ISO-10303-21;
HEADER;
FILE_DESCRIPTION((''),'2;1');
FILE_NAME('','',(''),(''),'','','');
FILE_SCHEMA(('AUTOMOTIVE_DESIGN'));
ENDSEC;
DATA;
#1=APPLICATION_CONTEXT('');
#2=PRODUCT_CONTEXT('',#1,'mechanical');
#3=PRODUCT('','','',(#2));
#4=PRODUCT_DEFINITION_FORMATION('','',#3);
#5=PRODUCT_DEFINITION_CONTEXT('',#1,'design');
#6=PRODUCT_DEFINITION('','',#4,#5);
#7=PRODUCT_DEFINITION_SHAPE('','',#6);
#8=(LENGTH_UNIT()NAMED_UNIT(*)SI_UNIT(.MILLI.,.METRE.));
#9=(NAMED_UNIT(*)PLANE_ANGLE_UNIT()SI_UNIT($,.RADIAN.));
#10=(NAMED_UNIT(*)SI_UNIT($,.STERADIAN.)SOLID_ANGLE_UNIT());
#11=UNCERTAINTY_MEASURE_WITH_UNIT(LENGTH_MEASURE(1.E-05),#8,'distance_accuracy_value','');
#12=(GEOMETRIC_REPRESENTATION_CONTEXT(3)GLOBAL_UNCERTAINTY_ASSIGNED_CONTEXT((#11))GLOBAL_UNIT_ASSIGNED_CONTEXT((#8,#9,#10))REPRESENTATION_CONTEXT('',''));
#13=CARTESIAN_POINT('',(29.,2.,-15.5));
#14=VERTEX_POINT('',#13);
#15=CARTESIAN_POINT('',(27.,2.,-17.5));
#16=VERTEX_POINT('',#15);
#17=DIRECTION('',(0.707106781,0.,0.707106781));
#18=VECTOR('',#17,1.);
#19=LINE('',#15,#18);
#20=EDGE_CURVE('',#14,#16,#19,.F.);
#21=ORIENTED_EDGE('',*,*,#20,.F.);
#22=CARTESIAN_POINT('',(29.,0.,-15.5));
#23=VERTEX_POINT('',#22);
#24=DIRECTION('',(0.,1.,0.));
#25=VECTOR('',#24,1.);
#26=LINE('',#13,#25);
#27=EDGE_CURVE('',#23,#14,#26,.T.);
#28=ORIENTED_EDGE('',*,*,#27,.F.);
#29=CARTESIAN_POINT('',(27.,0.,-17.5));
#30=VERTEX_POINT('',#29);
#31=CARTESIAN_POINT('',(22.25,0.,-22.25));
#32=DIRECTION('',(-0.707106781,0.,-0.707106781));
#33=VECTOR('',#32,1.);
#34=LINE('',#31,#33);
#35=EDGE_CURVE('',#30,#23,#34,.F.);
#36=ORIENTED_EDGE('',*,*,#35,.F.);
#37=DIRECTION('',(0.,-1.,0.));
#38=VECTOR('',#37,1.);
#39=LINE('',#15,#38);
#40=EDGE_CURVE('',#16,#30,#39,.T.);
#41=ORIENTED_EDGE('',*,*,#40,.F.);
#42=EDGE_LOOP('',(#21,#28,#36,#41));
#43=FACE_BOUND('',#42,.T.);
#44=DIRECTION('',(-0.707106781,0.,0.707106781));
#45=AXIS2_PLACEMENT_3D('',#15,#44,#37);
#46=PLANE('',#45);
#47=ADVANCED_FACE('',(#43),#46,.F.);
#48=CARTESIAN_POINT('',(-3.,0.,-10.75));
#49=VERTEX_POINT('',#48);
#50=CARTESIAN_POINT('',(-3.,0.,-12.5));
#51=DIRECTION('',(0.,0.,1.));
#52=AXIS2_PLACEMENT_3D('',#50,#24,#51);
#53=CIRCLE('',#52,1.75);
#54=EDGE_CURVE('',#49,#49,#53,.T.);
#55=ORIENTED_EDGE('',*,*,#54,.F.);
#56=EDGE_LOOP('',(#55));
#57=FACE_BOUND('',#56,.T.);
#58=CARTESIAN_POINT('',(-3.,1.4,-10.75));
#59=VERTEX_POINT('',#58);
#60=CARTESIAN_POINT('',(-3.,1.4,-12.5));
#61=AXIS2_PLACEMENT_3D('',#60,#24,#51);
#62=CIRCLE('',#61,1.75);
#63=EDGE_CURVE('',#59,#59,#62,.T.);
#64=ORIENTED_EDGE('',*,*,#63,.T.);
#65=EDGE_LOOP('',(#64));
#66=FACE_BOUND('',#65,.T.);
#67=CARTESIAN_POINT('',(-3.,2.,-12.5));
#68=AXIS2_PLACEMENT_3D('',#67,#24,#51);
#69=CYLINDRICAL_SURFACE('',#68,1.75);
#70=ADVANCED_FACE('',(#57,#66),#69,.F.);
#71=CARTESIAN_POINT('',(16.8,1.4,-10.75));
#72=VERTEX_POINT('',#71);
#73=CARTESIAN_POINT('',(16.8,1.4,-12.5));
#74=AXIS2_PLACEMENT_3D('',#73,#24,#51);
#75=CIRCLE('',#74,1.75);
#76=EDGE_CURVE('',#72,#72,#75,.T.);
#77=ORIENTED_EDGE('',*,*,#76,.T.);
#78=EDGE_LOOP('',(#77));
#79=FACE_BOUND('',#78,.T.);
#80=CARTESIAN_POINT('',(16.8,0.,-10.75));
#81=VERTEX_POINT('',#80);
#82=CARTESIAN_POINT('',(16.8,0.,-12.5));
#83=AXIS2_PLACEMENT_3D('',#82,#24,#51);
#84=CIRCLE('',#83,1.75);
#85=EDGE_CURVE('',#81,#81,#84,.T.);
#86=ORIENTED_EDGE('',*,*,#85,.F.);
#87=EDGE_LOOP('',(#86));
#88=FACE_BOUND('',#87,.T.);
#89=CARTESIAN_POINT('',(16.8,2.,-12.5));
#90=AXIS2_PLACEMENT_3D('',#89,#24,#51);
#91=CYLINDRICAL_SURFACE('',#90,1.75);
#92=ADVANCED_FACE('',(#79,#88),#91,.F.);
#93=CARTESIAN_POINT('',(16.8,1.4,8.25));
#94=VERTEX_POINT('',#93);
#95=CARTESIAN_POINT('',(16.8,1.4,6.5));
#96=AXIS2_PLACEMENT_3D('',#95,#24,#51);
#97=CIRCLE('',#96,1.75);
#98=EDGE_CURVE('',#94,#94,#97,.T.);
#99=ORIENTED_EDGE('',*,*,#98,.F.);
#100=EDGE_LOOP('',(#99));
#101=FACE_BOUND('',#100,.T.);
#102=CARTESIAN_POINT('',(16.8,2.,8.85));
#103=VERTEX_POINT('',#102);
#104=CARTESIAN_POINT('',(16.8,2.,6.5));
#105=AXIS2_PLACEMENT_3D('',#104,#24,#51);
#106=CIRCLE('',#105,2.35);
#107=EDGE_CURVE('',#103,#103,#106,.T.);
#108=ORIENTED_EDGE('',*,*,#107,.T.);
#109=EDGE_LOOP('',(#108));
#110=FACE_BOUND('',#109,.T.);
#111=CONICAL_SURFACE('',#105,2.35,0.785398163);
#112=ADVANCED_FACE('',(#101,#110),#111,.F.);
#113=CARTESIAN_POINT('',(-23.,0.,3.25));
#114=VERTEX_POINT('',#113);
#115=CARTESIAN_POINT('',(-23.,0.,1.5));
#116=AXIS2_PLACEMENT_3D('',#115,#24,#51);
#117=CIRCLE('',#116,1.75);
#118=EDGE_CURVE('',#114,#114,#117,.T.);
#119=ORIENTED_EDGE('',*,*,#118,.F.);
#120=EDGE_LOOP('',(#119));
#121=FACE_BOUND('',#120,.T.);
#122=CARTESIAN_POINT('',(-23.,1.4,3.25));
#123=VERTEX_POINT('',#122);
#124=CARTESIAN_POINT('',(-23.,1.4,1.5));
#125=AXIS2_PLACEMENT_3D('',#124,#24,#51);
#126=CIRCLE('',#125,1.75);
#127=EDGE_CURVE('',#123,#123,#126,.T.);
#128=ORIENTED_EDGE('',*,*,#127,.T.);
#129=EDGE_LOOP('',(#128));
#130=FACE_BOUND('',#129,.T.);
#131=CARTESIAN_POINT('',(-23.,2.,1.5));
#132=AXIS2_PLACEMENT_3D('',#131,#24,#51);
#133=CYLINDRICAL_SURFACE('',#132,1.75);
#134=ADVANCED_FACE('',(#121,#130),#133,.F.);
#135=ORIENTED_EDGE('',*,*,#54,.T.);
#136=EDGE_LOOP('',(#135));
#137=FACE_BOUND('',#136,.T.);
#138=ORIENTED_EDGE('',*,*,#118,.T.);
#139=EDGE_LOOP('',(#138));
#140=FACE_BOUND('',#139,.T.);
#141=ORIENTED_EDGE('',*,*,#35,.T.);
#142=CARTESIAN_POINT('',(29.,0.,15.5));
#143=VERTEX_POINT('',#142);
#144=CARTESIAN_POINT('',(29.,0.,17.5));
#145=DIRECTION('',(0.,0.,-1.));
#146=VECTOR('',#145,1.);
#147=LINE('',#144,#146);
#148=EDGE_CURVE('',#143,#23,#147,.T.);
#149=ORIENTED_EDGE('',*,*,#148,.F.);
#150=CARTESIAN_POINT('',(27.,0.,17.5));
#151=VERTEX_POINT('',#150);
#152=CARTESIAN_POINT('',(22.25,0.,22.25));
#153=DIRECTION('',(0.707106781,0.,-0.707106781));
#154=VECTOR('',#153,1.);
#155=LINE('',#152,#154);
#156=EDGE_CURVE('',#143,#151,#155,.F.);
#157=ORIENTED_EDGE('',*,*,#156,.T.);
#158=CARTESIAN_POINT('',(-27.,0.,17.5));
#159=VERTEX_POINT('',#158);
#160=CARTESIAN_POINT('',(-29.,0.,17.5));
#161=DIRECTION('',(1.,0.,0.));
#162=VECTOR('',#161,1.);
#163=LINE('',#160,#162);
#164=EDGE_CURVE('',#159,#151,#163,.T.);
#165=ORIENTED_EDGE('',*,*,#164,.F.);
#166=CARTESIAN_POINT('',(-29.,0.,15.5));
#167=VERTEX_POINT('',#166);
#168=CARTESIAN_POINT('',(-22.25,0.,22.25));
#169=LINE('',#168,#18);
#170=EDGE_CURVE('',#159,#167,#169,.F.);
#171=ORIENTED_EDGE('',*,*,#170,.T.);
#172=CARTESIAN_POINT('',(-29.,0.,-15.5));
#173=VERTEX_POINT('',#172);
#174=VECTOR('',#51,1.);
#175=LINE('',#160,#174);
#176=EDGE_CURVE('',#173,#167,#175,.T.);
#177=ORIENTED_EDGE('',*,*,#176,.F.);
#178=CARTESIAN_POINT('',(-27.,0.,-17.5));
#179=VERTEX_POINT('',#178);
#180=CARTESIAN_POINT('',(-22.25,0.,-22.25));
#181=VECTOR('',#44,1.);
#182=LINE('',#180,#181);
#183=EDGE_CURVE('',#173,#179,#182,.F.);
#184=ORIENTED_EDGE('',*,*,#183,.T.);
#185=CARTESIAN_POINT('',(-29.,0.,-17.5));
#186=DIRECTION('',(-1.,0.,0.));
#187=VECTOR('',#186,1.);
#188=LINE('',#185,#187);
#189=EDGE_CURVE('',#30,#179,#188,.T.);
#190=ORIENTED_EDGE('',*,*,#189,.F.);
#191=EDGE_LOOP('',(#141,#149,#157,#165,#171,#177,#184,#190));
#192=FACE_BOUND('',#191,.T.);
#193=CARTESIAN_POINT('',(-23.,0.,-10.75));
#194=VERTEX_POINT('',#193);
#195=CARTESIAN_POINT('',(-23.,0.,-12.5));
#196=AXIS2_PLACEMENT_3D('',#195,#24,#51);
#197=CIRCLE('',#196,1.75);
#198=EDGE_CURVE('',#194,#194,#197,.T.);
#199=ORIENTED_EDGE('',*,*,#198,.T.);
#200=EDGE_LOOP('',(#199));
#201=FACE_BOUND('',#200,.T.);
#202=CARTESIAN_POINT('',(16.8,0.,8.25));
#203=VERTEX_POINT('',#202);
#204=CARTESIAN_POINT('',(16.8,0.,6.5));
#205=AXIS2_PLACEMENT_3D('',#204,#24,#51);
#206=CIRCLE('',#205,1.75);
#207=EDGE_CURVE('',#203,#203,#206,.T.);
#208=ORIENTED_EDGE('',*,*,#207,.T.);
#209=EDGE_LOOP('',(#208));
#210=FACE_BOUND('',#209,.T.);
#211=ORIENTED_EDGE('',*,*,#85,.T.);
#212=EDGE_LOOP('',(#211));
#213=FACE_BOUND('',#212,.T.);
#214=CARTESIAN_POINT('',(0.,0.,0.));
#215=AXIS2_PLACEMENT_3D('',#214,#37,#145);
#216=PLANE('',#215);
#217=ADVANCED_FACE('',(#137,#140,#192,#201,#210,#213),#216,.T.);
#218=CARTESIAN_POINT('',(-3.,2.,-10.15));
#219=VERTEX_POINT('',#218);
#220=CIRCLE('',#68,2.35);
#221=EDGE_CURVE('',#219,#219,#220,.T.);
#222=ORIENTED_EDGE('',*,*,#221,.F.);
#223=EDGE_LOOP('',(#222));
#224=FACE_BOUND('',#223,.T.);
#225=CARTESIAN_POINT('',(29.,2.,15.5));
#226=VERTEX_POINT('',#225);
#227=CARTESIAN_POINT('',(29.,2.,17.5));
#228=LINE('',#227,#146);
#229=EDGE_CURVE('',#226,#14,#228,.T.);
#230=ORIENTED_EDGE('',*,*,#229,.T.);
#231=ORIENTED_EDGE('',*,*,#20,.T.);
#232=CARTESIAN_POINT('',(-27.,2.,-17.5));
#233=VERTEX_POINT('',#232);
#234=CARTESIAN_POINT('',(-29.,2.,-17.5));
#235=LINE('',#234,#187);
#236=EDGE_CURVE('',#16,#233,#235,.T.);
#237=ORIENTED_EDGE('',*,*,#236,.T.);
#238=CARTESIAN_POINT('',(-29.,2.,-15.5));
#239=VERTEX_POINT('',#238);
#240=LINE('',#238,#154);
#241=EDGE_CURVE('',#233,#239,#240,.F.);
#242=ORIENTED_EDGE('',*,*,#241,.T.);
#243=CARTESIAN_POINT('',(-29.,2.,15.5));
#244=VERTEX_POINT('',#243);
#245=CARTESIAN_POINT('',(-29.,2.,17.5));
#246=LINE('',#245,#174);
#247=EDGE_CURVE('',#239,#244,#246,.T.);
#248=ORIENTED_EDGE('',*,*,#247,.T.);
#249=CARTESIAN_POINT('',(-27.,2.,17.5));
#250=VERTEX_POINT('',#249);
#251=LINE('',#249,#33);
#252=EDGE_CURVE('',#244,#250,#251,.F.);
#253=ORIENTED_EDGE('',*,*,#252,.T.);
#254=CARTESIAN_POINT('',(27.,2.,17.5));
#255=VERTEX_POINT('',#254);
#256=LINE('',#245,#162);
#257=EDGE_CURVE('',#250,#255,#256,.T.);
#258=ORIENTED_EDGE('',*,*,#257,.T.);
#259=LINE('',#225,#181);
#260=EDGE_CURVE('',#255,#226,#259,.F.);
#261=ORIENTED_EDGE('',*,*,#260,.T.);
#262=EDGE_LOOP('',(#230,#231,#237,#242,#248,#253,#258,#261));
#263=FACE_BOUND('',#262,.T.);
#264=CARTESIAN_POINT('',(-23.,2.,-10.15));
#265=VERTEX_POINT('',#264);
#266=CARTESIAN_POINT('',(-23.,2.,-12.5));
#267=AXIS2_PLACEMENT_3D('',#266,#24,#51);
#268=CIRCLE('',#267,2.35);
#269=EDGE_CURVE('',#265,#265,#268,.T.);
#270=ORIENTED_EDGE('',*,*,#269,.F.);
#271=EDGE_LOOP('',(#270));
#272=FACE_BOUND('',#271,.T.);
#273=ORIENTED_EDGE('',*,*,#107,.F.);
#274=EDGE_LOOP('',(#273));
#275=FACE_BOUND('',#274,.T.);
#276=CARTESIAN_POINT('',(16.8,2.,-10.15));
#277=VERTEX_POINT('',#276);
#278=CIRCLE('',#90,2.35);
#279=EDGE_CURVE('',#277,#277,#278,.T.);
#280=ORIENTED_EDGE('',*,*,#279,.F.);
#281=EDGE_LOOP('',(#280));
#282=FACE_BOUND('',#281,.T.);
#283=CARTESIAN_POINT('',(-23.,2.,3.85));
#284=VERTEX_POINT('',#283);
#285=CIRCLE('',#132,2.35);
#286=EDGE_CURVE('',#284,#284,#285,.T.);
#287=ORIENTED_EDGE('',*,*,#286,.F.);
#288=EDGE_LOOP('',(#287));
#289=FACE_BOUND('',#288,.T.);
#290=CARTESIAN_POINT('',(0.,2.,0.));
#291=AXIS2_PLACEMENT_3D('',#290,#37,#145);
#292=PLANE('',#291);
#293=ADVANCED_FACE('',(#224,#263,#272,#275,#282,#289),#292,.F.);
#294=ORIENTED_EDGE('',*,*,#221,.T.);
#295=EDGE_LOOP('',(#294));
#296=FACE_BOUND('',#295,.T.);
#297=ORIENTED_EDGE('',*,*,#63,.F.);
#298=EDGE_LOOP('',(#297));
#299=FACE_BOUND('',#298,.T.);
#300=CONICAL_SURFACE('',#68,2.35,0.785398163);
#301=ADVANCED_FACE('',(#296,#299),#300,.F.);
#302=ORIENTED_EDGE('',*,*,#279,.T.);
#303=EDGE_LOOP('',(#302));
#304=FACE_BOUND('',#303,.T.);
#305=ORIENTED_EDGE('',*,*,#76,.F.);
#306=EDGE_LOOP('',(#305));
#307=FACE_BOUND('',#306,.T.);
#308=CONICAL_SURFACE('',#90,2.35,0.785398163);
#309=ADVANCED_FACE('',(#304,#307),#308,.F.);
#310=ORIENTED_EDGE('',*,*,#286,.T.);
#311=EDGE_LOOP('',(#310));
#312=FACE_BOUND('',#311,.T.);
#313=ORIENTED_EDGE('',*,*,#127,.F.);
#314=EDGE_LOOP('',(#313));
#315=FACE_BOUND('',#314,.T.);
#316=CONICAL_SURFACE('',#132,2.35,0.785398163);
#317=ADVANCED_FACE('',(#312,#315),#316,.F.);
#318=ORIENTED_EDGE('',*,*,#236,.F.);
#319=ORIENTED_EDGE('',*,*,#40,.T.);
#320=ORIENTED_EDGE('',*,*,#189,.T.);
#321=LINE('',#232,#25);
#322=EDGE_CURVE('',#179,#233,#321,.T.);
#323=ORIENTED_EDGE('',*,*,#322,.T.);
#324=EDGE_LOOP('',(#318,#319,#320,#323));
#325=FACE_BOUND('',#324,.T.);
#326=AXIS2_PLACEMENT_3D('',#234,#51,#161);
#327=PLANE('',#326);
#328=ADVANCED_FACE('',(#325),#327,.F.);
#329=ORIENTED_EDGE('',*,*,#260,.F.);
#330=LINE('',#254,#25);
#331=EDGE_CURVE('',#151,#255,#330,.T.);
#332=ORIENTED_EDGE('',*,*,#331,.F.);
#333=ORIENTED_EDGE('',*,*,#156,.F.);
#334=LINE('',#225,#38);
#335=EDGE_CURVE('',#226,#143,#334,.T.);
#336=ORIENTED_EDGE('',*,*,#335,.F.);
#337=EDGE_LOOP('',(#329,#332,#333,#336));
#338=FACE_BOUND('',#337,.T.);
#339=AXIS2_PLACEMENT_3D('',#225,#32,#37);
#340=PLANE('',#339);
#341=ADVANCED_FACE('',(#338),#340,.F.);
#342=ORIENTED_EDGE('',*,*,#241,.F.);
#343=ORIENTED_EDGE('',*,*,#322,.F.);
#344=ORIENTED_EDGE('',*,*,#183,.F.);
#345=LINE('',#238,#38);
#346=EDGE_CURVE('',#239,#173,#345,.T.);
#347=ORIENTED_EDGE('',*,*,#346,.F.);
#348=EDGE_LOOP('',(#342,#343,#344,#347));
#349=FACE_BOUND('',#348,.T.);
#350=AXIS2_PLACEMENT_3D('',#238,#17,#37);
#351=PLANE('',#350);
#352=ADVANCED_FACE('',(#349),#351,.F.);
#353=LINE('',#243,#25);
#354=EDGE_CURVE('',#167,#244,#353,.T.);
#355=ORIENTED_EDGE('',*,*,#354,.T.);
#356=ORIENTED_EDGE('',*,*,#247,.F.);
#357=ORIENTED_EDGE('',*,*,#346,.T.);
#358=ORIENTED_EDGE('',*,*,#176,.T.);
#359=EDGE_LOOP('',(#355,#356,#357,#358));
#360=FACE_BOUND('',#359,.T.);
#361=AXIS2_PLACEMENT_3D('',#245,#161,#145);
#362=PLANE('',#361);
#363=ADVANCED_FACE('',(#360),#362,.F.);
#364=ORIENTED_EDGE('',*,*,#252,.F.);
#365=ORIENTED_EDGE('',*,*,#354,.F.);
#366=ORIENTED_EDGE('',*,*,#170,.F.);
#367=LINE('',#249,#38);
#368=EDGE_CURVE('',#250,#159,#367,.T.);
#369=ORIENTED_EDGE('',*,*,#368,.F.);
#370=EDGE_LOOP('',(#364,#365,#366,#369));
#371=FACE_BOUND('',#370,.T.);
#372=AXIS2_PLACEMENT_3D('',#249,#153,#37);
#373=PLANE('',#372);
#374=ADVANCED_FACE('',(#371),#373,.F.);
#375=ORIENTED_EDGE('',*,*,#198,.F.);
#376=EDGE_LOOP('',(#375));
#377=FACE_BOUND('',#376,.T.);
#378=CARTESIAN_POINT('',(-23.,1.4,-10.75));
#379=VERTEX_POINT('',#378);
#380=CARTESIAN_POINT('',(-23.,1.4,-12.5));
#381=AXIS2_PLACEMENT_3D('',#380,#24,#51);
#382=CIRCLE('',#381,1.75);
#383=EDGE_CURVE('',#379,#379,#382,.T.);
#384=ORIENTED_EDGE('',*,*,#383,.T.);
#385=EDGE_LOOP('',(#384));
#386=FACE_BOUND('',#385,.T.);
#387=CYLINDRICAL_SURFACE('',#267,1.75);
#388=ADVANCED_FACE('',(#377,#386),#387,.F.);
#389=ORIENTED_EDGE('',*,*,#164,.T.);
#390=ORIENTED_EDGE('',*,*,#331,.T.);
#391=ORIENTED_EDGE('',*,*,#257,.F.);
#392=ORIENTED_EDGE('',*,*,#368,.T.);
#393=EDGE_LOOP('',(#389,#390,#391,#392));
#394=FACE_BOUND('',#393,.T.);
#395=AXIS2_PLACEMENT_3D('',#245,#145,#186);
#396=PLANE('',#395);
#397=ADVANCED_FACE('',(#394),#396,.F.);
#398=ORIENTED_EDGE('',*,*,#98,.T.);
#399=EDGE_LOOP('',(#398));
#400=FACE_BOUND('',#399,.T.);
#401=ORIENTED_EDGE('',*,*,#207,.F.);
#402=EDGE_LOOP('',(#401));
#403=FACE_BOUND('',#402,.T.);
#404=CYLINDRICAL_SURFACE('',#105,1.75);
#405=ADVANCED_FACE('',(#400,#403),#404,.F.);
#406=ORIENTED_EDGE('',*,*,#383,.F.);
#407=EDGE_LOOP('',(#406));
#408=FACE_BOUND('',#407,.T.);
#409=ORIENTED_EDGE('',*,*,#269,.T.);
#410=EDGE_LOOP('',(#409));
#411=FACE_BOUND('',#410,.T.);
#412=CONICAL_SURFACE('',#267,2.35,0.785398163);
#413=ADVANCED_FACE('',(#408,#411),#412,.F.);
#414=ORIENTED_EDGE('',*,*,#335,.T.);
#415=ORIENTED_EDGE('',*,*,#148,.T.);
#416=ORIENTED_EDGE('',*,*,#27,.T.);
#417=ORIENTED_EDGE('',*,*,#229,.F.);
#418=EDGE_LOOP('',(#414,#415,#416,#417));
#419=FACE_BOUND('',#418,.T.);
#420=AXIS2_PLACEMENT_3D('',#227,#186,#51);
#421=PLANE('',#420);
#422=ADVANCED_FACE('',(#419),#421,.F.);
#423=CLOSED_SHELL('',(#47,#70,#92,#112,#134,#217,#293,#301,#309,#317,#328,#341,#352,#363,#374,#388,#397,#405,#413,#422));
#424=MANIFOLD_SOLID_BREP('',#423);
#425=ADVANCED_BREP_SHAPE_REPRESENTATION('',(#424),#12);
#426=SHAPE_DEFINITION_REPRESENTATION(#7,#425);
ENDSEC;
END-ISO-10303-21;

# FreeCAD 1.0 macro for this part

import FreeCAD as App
import Part
import Sketcher

V = App.Vector
Q = App.Units.Quantity


def edges_at(feature, points):
    """Names of the edges that pass closest to the given points."""
    edges = feature.Shape.Edges
    near = lambda p: min(range(len(edges)), key=lambda i: edges[i].distToShape(Part.Vertex(*p))[0])
    return sorted({f"Edge{near(p) + 1}" for p in points})


def add_polygon(sketch, points):
    """Adds a closed chain of lines whose ends are joined by coincident constraints."""
    first, n = sketch.GeometryCount, len(points)
    for a, b in zip(points, points[1:] + points[:1]):
        sketch.addGeometry(Part.LineSegment(App.Vector(*a, 0), App.Vector(*b, 0)), False)
    for i in range(n):
        sketch.addConstraint(Sketcher.Constraint("Coincident", first + i, 2, first + (i + 1) % n, 1))

doc = App.newDocument("Part")
body = doc.addObject("PartDesign::Body", "Body")

sketch1 = doc.addObject("Sketcher::SketchObject", "Sketch")
body.addObject(sketch1)
sketch1.AttachmentSupport = (doc.XZ_Plane, [""])
sketch1.MapMode = "FlatFace"
add_polygon(sketch1, [(-29, -18), (-29, 18), (29, 18), (29, -18)])
sketch1.addConstraint([
    Sketcher.Constraint("Vertical", 0),
    Sketcher.Constraint("Horizontal", 1),
    Sketcher.Constraint("Vertical", 2),
    Sketcher.Constraint("Horizontal", 3),
    Sketcher.Constraint("Symmetric", 0, 2, 2, 2, -1, 1),
    Sketcher.Constraint("DistanceX", 1, 1, 1, 2, 58.0),
    Sketcher.Constraint("DistanceY", 0, 1, 0, 2, 35.0),
])
pad1 = doc.addObject("PartDesign::Pad", "Pad")
body.addObject(pad1)
pad1.Profile = sketch1
pad1.Length = 2
pad1.Reversed = True

sketch2 = doc.addObject("Sketcher::SketchObject", "Sketch001")
body.addObject(sketch2)
sketch2.AttachmentSupport = (doc.YZ_Plane, [""])
sketch2.MapMode = "FlatFace"
sketch2.AttachmentOffset = App.Placement(V(0, 0, -23), App.Rotation())
add_polygon(sketch2, [(0, -12.5), (2, -12.5), (2, -10.2), (1.4, -10.8), (0, -10.8)])
sketch2.addGeometry(Part.LineSegment(V(2, -12.5, 0), V(0, -12.5, 0)), True)
sketch2.addConstraint([
    Sketcher.Constraint("Horizontal", 0),
    Sketcher.Constraint("Vertical", 1),
    Sketcher.Constraint("Horizontal", 3),
    Sketcher.Constraint("Vertical", 4),
    Sketcher.Constraint("Horizontal", 5),
    Sketcher.Constraint("Coincident", 5, 1, 0, 2),
    Sketcher.Constraint("PointOnObject", 3, 2, -2),
    Sketcher.Constraint("PointOnObject", 5, 2, -2),
    Sketcher.Constraint("DistanceX", 0, 1, 0, 2, 2.0),
    Sketcher.Constraint("Angle", 2, Q("-135 deg")),
    Sketcher.Constraint("DistanceX", 3, 2, 3, 1, 1.4),
    Sketcher.Constraint("DistanceY", 1, 1, 1, 2, 2.35),
    Sketcher.Constraint("DistanceY", 0, 2, -1, 1, 12.5),
])
groove = doc.addObject("PartDesign::Groove", "Groove")
body.addObject(groove)
groove.Profile = sketch2
groove.ReferenceAxis = (sketch2, ["Axis0"])
groove.Angle = 360
doc.recompute()

linearpattern = doc.addObject("PartDesign::LinearPattern", "LinearPattern")
body.addObject(linearpattern)
linearpattern.Originals = [groove]
linearpattern.Direction = (doc.X_Axis, [""])
linearpattern.Mode = "offset"
linearpattern.Offset = 20
linearpattern.Occurrences = 2
body.Tip = linearpattern
doc.recompute()

linearpattern2 = doc.addObject("PartDesign::LinearPattern", "LinearPattern001")
body.addObject(linearpattern2)
linearpattern2.Originals = [groove]
linearpattern2.Direction = (doc.X_Axis, [""])
linearpattern2.Mode = "offset"
linearpattern2.Offset = 39.8
linearpattern2.Occurrences = 2
body.Tip = linearpattern2
doc.recompute()

datumline = doc.addObject("PartDesign::Line", "DatumLine")
body.addObject(datumline)
datumline.Placement = App.Placement(V(0, 0, 0), App.Rotation(V(0, 0, 1), V(0.90244097, 0, 0.430813528)))
linearpattern3 = doc.addObject("PartDesign::LinearPattern", "LinearPattern002")
body.addObject(linearpattern3)
linearpattern3.Originals = [groove]
linearpattern3.Direction = (datumline, [""])
linearpattern3.Mode = "offset"
linearpattern3.Offset = 44.102608
linearpattern3.Occurrences = 2
body.Tip = linearpattern3
doc.recompute()

linearpattern4 = doc.addObject("PartDesign::LinearPattern", "LinearPattern003")
body.addObject(linearpattern4)
linearpattern4.Originals = [groove]
linearpattern4.Direction = (doc.Z_Axis, [""])
linearpattern4.Mode = "offset"
linearpattern4.Offset = 14
linearpattern4.Occurrences = 2
body.Tip = linearpattern4
doc.recompute()

chamfer = doc.addObject("PartDesign::Chamfer", "Chamfer")
body.addObject(chamfer)
chamfer.Base = (linearpattern4, edges_at(linearpattern4, [
    (29, 1, 17.5),
    (-29, 1, 17.5),
    (-29, 1, -17.5),
    (29, 1, -17.5),
]))
chamfer.Size = 2

doc.recompute()
